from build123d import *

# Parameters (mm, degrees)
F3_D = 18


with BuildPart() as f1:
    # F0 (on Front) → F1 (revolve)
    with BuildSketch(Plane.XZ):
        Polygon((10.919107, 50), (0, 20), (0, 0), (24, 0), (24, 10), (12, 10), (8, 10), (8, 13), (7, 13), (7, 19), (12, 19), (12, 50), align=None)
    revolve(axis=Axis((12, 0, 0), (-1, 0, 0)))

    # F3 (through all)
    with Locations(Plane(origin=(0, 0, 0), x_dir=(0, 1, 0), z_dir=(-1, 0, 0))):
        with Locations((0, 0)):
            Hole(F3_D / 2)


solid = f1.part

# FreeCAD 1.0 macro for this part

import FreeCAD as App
import Part
import Sketcher
from FreeCAD import Vector
Q = App.Units.Quantity


def add_polygon(sketch, points):
    """Adds a closed chain of lines whose ends are joined by coincident constraints."""
    first, n = sketch.GeometryCount, len(points)
    for a, b in zip(points, points[1:] + points[:1]):
        sketch.addGeometry(Part.LineSegment(App.Vector(*a, 0), App.Vector(*b, 0)), False)
    for i in range(n):
        sketch.addConstraint(Sketcher.Constraint("Coincident", first + i, 2, first + (i + 1) % n, 1))

doc = App.newDocument("Part")
body = doc.addObject("PartDesign::Body", "Body")

# Sketch on XZ plane
sketch1 = body.newObject("Sketcher::SketchObject", "Sketch")
sketch1.AttachmentSupport = (doc.getObject("XZ_Plane"), [""])
sketch1.MapMode = "FlatFace"
add_polygon(sketch1, [(10.9, 50), (0, 20), (0, 0), (24, 0), (24, 10), (8, 10), (8, 13), (7, 13), (7, 19), (12, 19), (12, 50)])  # lines 0-10
sketch1.addConstraint(Sketcher.Constraint("Vertical", 1))
sketch1.addConstraint(Sketcher.Constraint("Horizontal", 2))
sketch1.addConstraint(Sketcher.Constraint("Vertical", 3))
sketch1.addConstraint(Sketcher.Constraint("Horizontal", 4))
sketch1.addConstraint(Sketcher.Constraint("Vertical", 5))
sketch1.addConstraint(Sketcher.Constraint("Horizontal", 6))
sketch1.addConstraint(Sketcher.Constraint("Vertical", 7))
sketch1.addConstraint(Sketcher.Constraint("Horizontal", 8))
sketch1.addConstraint(Sketcher.Constraint("Vertical", 9))
sketch1.addConstraint(Sketcher.Constraint("Horizontal", 10))
sketch1.addConstraint(Sketcher.Constraint("Coincident", 1, 2, -1, 1))
sketch1.addConstraint(Sketcher.Constraint("DistanceX", 2, 1, 2, 2, 24.0))
sketch1.addConstraint(Sketcher.Constraint("DistanceX", 4, 2, 4, 1, 16.0))
sketch1.addConstraint(Sketcher.Constraint("DistanceX", 6, 2, 6, 1, 1.0))
sketch1.addConstraint(Sketcher.Constraint("DistanceX", 8, 1, 8, 2, 5.0))
sketch1.addConstraint(Sketcher.Constraint("DistanceY", 1, 2, 1, 1, 20.0))
sketch1.addConstraint(Sketcher.Constraint("DistanceY", 3, 1, 3, 2, 10.0))
sketch1.addConstraint(Sketcher.Constraint("DistanceY", 5, 1, 5, 2, 3.0))
sketch1.addConstraint(Sketcher.Constraint("DistanceY", 7, 1, 7, 2, 6.0))
sketch1.addConstraint(Sketcher.Constraint("DistanceY", 9, 1, 9, 2, 31.0))
sketch1.addConstraint(Sketcher.Constraint("Angle", 0, Q("-110 deg")))
revolution = body.newObject("PartDesign::Revolution", "Revolution")
revolution.Profile = sketch1
revolution.ReferenceAxis = (sketch1, ["H_Axis"])
revolution.Angle = 360

# Sketch on YZ plane
sketch2 = body.newObject("Sketcher::SketchObject", "Sketch001")
sketch2.AttachmentSupport = (doc.getObject("YZ_Plane"), [""])
sketch2.MapMode = "FlatFace"
sketch2.addGeometry(Part.Circle(Vector(0, 0, 0), Vector(0, 0, 1), 9), False)
sketch2.addConstraint(Sketcher.Constraint("Coincident", 0, 3, -1, 1))
sketch2.addConstraint(Sketcher.Constraint("Diameter", 0, 18.0))
doc.recompute()
hole = body.newObject("PartDesign::Hole", "Hole")
hole.Profile = sketch2
hole.ThreadType = "None"
hole.Diameter = 18
hole.DepthType = "ThroughAll"
hole.Reversed = True

doc.recompute()
